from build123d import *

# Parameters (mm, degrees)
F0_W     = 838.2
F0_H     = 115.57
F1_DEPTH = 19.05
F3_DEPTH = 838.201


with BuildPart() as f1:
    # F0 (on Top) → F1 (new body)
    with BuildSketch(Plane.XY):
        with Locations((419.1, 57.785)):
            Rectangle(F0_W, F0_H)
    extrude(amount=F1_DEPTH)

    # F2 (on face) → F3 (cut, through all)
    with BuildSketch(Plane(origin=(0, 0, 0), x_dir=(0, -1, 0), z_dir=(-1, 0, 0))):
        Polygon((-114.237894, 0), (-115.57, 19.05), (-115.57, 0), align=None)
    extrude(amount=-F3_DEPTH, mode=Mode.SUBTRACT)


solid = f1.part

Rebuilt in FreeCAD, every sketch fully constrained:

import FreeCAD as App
import Part
import Sketcher
from FreeCAD import Vector
Q = App.Units.Quantity


def add_polygon(sketch, points):
    """Adds a closed chain of lines whose ends are joined by coincident constraints."""
    first, n = sketch.GeometryCount, len(points)
    for a, b in zip(points, points[1:] + points[:1]):
        sketch.addGeometry(Part.LineSegment(App.Vector(*a, 0), App.Vector(*b, 0)), False)
    for i in range(n):
        sketch.addConstraint(Sketcher.Constraint("Coincident", first + i, 2, first + (i + 1) % n, 1))

doc = App.newDocument("Part")
body = doc.addObject("PartDesign::Body", "Body")

# Sketch on XY plane
sketch1 = body.newObject("Sketcher::SketchObject", "Sketch")
sketch1.AttachmentSupport = (doc.getObject("XY_Plane"), [""])
sketch1.MapMode = "FlatFace"
add_polygon(sketch1, [(0, 116), (0, 0), (838, 0), (838, 116)])  # lines 0-3
sketch1.addConstraint([
    Sketcher.Constraint("Vertical", 0),
    Sketcher.Constraint("Horizontal", 1),
    Sketcher.Constraint("Vertical", 2),
    Sketcher.Constraint("Horizontal", 3),
    Sketcher.Constraint("Coincident", 0, 2, -1, 1),
    Sketcher.Constraint("DistanceX", 1, 1, 1, 2, Q("33 in")),
    Sketcher.Constraint("DistanceY", 0, 2, 0, 1, Q("4.55 in")),
])
pad1 = body.newObject("PartDesign::Pad", "Pad")
pad1.Profile = sketch1
pad1.Length = Q("0.75 in")

# Sketch on YZ plane
sketch2 = body.newObject("Sketcher::SketchObject", "Sketch001")
sketch2.AttachmentSupport = (doc.getObject("YZ_Plane"), [""])
sketch2.MapMode = "FlatFace"
add_polygon(sketch2, [(114.2, 0), (115.6, 19.1), (115.6, 0)])  # lines 0-2
sketch2.addConstraint([
    Sketcher.Constraint("Vertical", 1),
    Sketcher.Constraint("Horizontal", 2),
    Sketcher.Constraint("PointOnObject", 1, 2, -1),
    Sketcher.Constraint("Angle", 0, Q("85.999999 deg")),
    Sketcher.Constraint("DistanceY", 1, 2, 1, 1, Q("0.75 in")),
    Sketcher.Constraint("DistanceX", -1, 1, 0, 2, Q("4.55 in")),
])
pocket1 = body.newObject("PartDesign::Pocket", "Pocket")
pocket1.Profile = sketch2
pocket1.Type = "ThroughAll"
pocket1.Reversed = True

doc.recompute()
